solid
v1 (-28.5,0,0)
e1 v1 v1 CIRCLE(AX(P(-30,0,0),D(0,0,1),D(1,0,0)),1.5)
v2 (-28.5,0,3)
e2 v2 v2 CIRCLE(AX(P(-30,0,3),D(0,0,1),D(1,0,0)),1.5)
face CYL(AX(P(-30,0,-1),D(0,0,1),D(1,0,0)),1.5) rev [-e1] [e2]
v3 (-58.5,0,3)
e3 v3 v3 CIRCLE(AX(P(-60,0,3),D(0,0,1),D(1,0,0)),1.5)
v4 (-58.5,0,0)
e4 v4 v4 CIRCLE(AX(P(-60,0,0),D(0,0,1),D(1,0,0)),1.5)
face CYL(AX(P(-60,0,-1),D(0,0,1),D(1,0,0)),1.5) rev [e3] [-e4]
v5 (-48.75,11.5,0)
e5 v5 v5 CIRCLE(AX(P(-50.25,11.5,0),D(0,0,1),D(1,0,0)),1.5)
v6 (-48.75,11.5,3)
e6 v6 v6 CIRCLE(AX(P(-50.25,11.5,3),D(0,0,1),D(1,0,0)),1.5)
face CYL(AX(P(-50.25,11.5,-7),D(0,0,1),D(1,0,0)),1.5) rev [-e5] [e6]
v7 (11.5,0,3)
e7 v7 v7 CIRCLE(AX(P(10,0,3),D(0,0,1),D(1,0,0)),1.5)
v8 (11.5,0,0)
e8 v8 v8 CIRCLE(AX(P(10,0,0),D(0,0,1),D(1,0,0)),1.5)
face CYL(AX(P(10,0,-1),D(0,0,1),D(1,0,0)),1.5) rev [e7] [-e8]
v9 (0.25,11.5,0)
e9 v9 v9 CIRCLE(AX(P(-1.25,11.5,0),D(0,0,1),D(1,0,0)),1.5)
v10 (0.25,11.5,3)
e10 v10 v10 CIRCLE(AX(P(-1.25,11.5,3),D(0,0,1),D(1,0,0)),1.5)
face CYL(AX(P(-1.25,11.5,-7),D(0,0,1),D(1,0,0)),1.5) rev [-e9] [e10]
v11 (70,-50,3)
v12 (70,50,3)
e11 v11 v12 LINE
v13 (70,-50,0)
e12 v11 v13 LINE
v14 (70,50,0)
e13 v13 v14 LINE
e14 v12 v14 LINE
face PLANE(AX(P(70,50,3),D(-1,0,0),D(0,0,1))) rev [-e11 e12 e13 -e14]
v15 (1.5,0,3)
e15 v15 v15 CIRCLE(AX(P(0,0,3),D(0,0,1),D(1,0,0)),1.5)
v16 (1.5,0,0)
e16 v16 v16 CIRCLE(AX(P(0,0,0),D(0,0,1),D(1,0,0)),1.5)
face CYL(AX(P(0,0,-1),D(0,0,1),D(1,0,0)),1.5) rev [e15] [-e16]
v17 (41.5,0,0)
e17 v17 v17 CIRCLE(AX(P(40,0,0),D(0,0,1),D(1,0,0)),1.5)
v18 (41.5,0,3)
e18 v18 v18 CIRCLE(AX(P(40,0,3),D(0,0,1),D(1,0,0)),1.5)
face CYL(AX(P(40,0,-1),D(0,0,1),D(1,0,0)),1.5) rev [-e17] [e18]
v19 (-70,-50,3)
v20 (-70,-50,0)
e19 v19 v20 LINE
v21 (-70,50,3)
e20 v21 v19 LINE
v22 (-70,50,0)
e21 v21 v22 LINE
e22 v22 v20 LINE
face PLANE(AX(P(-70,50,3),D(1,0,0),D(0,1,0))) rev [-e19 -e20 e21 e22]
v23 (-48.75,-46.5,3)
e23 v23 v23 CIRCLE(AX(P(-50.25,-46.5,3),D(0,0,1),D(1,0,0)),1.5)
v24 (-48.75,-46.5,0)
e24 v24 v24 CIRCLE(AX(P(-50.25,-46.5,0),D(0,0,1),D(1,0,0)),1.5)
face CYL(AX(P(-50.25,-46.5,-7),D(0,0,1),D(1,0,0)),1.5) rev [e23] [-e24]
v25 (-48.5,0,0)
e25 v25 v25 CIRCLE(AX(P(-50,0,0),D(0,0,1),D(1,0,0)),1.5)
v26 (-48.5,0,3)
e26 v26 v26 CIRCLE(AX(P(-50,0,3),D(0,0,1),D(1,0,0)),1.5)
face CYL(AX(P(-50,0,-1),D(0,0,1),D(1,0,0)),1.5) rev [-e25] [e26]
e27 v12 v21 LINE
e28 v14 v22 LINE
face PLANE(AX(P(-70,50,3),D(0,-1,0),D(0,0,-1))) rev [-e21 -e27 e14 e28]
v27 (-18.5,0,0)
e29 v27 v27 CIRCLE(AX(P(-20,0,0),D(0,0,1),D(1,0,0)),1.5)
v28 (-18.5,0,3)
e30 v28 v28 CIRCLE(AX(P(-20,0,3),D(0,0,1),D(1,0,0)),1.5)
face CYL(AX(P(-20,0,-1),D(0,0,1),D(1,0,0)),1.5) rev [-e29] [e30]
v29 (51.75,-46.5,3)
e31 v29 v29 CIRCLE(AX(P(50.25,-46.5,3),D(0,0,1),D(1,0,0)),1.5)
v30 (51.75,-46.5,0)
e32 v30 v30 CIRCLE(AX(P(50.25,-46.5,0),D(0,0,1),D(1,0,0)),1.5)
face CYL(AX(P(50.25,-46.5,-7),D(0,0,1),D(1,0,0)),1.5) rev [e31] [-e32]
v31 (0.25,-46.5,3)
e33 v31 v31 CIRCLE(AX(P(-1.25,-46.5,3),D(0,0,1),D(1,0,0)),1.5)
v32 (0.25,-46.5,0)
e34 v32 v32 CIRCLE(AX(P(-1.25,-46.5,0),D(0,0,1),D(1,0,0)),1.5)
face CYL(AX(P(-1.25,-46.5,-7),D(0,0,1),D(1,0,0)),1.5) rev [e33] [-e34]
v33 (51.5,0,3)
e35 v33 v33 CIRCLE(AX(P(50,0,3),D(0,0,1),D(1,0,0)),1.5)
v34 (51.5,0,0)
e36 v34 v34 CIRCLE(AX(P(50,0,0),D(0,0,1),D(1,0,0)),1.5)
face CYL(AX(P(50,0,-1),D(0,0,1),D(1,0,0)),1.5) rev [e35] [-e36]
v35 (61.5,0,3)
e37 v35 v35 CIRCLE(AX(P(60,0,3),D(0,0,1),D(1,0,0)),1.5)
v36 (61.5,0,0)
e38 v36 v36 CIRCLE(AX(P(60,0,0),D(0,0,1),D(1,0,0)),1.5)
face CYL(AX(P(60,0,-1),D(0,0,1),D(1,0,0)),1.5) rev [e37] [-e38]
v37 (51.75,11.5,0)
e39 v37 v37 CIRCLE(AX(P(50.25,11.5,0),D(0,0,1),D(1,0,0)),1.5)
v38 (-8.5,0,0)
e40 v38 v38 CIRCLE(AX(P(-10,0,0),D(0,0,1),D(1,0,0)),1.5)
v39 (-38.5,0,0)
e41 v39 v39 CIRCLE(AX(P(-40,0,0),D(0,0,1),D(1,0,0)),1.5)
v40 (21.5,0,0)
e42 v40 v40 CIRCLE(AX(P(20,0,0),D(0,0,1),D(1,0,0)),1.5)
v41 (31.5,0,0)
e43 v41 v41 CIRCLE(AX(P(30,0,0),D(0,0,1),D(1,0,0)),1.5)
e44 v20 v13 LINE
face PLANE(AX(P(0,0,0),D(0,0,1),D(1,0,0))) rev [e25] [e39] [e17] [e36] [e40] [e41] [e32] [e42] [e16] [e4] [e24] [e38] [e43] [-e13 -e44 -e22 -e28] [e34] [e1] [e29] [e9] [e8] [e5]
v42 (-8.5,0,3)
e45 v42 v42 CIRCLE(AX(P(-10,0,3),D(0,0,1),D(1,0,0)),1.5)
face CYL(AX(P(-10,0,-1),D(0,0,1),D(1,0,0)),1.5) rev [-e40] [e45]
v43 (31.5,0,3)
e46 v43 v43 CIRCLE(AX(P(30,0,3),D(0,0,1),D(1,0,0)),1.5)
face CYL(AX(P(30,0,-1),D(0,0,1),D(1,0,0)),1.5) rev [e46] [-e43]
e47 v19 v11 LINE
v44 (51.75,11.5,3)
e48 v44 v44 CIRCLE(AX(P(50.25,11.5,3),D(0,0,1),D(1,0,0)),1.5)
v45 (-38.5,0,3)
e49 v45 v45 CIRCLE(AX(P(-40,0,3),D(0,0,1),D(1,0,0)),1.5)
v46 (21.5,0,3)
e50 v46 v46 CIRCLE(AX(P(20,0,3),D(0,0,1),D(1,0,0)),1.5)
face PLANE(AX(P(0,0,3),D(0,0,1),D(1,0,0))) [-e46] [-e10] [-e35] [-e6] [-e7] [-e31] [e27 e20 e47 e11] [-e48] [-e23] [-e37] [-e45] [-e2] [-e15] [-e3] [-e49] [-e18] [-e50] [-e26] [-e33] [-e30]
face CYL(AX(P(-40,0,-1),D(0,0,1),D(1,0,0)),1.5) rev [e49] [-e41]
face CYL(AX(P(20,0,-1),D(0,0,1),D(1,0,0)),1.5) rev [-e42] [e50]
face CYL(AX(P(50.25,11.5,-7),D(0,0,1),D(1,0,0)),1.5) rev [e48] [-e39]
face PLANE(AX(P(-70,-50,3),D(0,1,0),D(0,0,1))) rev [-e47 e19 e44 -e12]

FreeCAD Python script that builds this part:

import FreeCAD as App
import Part
import Sketcher
from FreeCAD import Vector


def add_polygon(sketch, points):
    """Adds a closed chain of lines whose ends are joined by coincident constraints."""
    first, n = sketch.GeometryCount, len(points)
    for a, b in zip(points, points[1:] + points[:1]):
        sketch.addGeometry(Part.LineSegment(App.Vector(*a, 0), App.Vector(*b, 0)), False)
    for i in range(n):
        sketch.addConstraint(Sketcher.Constraint("Coincident", first + i, 2, first + (i + 1) % n, 1))

doc = App.newDocument("Part")
params = doc.addObject("Spreadsheet::Sheet", "Params")
for row, (alias, value) in enumerate([
    ("sketch1_width", "140 mm"),
    ("sketch1_height", "100 mm"),
    ("pad1_length", "3 mm"),
    ("sketch2_diameter", "3 mm"),
    ("pocket1_length", "4 mm"),
    ("sketch3_diameter", "3 mm"),
    ("pocket2_length", "10 mm"),
], start=1):
    params.set(f"A{row}", alias)
    params.set(f"B{row}", "=" + value)
    params.setAlias(f"B{row}", alias)

body = doc.addObject("PartDesign::Body", "Body")

sketch1 = body.newObject("Sketcher::SketchObject", "Sketch")
sketch1.AttachmentSupport = (doc.getObject("XY_Plane"), [""])
sketch1.MapMode = "FlatFace"
add_polygon(sketch1, [(-70, 50), (-70, -50), (70, -50), (70, 50)])
sketch1.addConstraint([
    Sketcher.Constraint("Vertical", 0),
    Sketcher.Constraint("Horizontal", 1),
    Sketcher.Constraint("Vertical", 2),
    Sketcher.Constraint("Horizontal", 3),
    Sketcher.Constraint("Symmetric", 0, 2, 2, 2, -1, 1),
    Sketcher.Constraint("DistanceX", 1, 1, 1, 2, 140.0),
    Sketcher.Constraint("DistanceY", 0, 2, 0, 1, 100.0),
])
sketch1.setExpression("Constraints[9]", "Params.sketch1_width")
sketch1.setExpression("Constraints[10]", "Params.sketch1_height")
pad1 = body.newObject("PartDesign::Pad", "Pad")
pad1.Profile = sketch1
pad1.setExpression("Length", "Params.pad1_length")

sketch2 = body.newObject("Sketcher::SketchObject", "Sketch001")
sketch2.AttachmentSupport = (doc.getObject("XY_Plane"), [""])
sketch2.MapMode = "FlatFace"
sketch2.AttachmentOffset = App.Placement(Vector(0, 0, 3), App.Rotation())
sketch2.addGeometry([
    Part.Circle(Vector(0, 0, 0), Vector(0, 0, 1), 1.5),
    Part.Circle(Vector(10, 0, 0), Vector(0, 0, 1), 1.5),
    Part.Circle(Vector(20, 0, 0), Vector(0, 0, 1), 1.5),
    Part.Circle(Vector(30, 0, 0), Vector(0, 0, 1), 1.5),
    Part.Circle(Vector(40, 0, 0), Vector(0, 0, 1), 1.5),
    Part.Circle(Vector(50, 0, 0), Vector(0, 0, 1), 1.5),
    Part.Circle(Vector(60, 0, 0), Vector(0, 0, 1), 1.5),
    Part.Circle(Vector(-10, 0, 0), Vector(0, 0, 1), 1.5),
    Part.Circle(Vector(-20, 0, 0), Vector(0, 0, 1), 1.5),
    Part.Circle(Vector(-30, 0, 0), Vector(0, 0, 1), 1.5),
    Part.Circle(Vector(-40, 0, 0), Vector(0, 0, 1), 1.5),
    Part.Circle(Vector(-50, 0, 0), Vector(0, 0, 1), 1.5),
    Part.Circle(Vector(-60, 0, 0), Vector(0, 0, 1), 1.5),
], False)
sketch2.addConstraint([
    Sketcher.Constraint("Coincident", 0, 3, -1, 1),
    Sketcher.Constraint("Equal", 0, 1),
    Sketcher.Constraint("Equal", 1, 2),
    Sketcher.Constraint("Equal", 2, 3),
    Sketcher.Constraint("Equal", 3, 4),
    Sketcher.Constraint("Equal", 4, 5),
    Sketcher.Constraint("Equal", 5, 6),
    Sketcher.Constraint("Equal", 6, 7),
    Sketcher.Constraint("Equal", 7, 8),
    Sketcher.Constraint("Equal", 8, 9),
    Sketcher.Constraint("Equal", 9, 10),
    Sketcher.Constraint("Equal", 10, 11),
    Sketcher.Constraint("Equal", 11, 12),
    Sketcher.Constraint("Symmetric", 1, 3, 7, 3, -1, 1),
    Sketcher.Constraint("Symmetric", 2, 3, 8, 3, -1, 1),
    Sketcher.Constraint("Symmetric", 3, 3, 9, 3, -1, 1),
    Sketcher.Constraint("Symmetric", 4, 3, 10, 3, -1, 1),
    Sketcher.Constraint("Symmetric", 5, 3, 11, 3, -1, 1),
    Sketcher.Constraint("Symmetric", 6, 3, 12, 3, -1, 1),
    Sketcher.Constraint("PointOnObject", 1, 3, -1),
    Sketcher.Constraint("PointOnObject", 2, 3, -1),
    Sketcher.Constraint("PointOnObject", 3, 3, -1),
    Sketcher.Constraint("PointOnObject", 4, 3, -1),
    Sketcher.Constraint("PointOnObject", 5, 3, -1),
    Sketcher.Constraint("PointOnObject", 6, 3, -1),
    Sketcher.Constraint("Diameter", 0, 3.0),
    Sketcher.Constraint("DistanceX", -1, 1, 1, 3, 10.0),
    Sketcher.Constraint("DistanceX", -1, 1, 2, 3, 20.0),
    Sketcher.Constraint("DistanceX", -1, 1, 3, 3, 30.0),
    Sketcher.Constraint("DistanceX", -1, 1, 4, 3, 40.0),
    Sketcher.Constraint("DistanceX", -1, 1, 5, 3, 50.0),
    Sketcher.Constraint("DistanceX", -1, 1, 6, 3, 60.0),
])
sketch2.setExpression("Constraints[25]", "Params.sketch2_diameter")
pocket1 = body.newObject("PartDesign::Pocket", "Pocket")
pocket1.Profile = sketch2
pocket1.setExpression("Length", "Params.pocket1_length")

sketch3 = body.newObject("Sketcher::SketchObject", "Sketch002")
sketch3.AttachmentSupport = (doc.getObject("XY_Plane"), [""])
sketch3.MapMode = "FlatFace"
sketch3.AttachmentOffset = App.Placement(Vector(0, 0, 3), App.Rotation())
sketch3.addGeometry([
    Part.Circle(Vector(50.2, -46.5, 0), Vector(0, 0, 1), 1.5),
    Part.Circle(Vector(-50.2, -46.5, 0), Vector(0, 0, 1), 1.5),
    Part.Circle(Vector(-1.2, -46.5, 0), Vector(0, 0, 1), 1.5),
    Part.Circle(Vector(-1.2, 11.5, 0), Vector(0, 0, 1), 1.5),
    Part.Circle(Vector(50.2, 11.5, 0), Vector(0, 0, 1), 1.5),
    Part.Circle(Vector(-50.2, 11.5, 0), Vector(0, 0, 1), 1.5),
], False)
sketch3.addConstraint([
    Sketcher.Constraint("Equal", 0, 1),
    Sketcher.Constraint("Equal", 1, 2),
    Sketcher.Constraint("Equal", 2, 3),
    Sketcher.Constraint("Equal", 3, 4),
    Sketcher.Constraint("Equal", 4, 5),
    Sketcher.Constraint("Symmetric", 0, 3, 1, 3, -2),
    Sketcher.Constraint("Symmetric", 4, 3, 5, 3, -2),
    Sketcher.Constraint("Horizontal", 1, 3, 2, 3),
    Sketcher.Constraint("Horizontal", 3, 3, 4, 3),
    Sketcher.Constraint("Vertical", 2, 3, 3, 3),
    Sketcher.Constraint("Vertical", 0, 3, 4, 3),
    Sketcher.Constraint("Diameter", 0, 3.0),
    Sketcher.Constraint("DistanceX", 1, 3, 2, 3, 49.0),
    Sketcher.Constraint("DistanceY", 2, 3, 3, 3, 58.0),
    Sketcher.Constraint("DistanceY", 0, 3, -1, 1, 46.5),
    Sketcher.Constraint("DistanceX", 1, 3, 0, 3, 100.5),
])
sketch3.setExpression("Constraints[11]", "Params.sketch3_diameter")
pocket2 = body.newObject("PartDesign::Pocket", "Pocket001")
pocket2.Profile = sketch3
pocket2.setExpression("Length", "Params.pocket2_length")

doc.recompute()
